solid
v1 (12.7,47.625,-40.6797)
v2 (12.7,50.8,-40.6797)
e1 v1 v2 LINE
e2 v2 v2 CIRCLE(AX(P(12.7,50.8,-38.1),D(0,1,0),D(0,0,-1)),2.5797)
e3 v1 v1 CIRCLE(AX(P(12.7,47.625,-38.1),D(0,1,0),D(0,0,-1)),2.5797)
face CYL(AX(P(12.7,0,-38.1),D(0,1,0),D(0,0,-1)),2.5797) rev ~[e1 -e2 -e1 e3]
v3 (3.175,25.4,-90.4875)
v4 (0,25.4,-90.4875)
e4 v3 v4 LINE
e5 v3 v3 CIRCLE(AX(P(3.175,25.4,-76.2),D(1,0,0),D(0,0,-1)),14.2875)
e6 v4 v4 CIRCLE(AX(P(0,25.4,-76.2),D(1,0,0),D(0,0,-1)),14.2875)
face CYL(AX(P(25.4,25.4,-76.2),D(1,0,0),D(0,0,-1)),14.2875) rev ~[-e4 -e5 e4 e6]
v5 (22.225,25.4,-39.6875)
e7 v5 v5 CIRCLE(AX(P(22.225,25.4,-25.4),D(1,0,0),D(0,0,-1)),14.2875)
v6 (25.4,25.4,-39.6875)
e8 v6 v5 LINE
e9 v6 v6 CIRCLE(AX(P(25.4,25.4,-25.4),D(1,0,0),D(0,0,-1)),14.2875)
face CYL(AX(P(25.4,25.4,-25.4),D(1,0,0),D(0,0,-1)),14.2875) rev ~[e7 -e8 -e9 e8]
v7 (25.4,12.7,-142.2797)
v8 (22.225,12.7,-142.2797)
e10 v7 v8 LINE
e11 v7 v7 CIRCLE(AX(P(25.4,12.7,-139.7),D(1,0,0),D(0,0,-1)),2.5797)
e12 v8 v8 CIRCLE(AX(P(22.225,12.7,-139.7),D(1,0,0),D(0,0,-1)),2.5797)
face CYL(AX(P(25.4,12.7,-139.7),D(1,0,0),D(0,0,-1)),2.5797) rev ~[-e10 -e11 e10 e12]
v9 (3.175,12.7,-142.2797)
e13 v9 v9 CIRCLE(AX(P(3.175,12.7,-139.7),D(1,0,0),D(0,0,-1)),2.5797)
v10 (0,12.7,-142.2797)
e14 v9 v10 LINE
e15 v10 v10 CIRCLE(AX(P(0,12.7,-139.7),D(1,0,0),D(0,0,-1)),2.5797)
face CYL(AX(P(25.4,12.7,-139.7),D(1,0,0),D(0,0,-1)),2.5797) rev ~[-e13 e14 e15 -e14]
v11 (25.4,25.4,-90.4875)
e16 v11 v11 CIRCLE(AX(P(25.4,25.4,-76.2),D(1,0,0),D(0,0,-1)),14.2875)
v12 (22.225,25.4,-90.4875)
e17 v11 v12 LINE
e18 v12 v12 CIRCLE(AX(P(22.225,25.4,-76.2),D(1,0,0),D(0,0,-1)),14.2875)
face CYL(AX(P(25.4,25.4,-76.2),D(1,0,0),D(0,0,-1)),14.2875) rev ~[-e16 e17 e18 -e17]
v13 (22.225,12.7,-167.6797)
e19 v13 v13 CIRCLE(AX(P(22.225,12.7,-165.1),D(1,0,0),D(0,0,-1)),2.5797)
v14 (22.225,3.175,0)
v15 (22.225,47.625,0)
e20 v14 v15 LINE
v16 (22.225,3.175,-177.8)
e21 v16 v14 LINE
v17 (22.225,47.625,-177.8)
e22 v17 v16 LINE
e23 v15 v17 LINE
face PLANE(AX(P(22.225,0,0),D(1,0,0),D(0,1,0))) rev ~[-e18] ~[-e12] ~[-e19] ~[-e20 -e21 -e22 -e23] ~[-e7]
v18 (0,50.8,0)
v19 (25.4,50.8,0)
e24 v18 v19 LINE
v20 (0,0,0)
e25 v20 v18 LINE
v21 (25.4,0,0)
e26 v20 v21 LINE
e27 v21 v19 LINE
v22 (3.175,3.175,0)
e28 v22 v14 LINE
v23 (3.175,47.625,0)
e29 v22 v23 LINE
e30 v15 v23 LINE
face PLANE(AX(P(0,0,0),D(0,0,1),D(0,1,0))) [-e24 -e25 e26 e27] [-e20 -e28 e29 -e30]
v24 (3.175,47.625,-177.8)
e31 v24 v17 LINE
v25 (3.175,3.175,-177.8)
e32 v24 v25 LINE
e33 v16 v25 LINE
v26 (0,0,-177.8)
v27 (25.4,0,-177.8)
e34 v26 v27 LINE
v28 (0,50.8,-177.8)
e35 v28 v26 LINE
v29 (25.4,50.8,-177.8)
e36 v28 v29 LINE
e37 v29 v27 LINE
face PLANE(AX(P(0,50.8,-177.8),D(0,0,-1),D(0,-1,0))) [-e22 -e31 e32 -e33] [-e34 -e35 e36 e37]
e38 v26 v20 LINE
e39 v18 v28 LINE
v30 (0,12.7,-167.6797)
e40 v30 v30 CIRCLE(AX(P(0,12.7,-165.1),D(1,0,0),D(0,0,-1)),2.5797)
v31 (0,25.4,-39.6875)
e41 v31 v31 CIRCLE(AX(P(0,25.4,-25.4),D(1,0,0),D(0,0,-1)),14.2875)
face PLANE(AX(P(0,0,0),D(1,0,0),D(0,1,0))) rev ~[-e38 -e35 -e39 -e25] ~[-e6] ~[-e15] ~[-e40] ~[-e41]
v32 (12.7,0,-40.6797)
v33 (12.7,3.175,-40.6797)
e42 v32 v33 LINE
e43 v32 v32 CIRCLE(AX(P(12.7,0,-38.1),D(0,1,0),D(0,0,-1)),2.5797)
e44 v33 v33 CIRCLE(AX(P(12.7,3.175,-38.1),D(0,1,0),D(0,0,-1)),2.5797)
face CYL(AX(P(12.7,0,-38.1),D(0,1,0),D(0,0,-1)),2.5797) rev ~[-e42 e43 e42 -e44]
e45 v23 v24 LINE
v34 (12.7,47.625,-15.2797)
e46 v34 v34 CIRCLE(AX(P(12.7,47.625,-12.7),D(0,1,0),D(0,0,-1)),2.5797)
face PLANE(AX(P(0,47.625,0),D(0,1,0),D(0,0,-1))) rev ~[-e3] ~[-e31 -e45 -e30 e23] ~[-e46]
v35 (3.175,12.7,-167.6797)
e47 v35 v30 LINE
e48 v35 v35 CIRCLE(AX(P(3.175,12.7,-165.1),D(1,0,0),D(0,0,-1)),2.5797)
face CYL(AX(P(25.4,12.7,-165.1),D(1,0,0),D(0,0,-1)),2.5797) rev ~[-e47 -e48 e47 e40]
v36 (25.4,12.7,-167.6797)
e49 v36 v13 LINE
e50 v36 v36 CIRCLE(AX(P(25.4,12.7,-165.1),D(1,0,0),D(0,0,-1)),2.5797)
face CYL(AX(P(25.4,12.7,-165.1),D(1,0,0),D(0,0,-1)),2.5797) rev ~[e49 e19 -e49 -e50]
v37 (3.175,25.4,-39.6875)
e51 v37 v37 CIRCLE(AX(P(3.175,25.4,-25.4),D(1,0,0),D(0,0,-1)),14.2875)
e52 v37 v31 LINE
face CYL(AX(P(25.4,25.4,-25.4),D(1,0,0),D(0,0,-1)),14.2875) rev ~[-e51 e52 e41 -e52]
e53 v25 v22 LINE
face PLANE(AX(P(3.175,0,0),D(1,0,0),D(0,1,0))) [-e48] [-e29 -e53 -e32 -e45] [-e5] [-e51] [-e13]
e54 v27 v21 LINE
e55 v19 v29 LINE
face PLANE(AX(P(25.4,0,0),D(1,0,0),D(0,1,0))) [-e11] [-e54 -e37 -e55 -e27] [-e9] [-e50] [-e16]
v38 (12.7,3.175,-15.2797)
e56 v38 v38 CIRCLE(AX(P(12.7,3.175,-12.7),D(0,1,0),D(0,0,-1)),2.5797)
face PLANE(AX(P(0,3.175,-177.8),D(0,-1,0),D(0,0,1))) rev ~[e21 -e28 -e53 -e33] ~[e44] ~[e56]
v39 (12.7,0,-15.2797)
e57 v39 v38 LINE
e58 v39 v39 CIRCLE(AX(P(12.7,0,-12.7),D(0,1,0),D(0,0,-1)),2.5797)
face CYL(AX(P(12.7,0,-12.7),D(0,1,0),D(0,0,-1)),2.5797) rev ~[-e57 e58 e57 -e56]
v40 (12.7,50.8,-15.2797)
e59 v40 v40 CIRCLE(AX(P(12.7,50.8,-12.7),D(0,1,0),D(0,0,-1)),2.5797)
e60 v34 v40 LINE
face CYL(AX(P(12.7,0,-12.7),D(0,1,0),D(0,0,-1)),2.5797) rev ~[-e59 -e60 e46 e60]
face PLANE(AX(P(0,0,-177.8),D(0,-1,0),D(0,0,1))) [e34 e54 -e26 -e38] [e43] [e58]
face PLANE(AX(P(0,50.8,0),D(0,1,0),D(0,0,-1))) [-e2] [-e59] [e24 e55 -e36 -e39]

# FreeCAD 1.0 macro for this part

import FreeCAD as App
import Part
import Sketcher
from FreeCAD import Vector
Q = App.Units.Quantity


def faces_at(feature, points):
    """Names of the faces that lie closest to the given points."""
    faces = feature.Shape.Faces
    near = lambda p: min(range(len(faces)), key=lambda i: faces[i].distToShape(Part.Vertex(*p))[0])
    return sorted({f"Face{near(p) + 1}" for p in points})

doc = App.newDocument("Part")
body = doc.addObject("PartDesign::Body", "Body")

# Sketch on YZ plane
sketch1 = doc.addObject("Sketcher::SketchObject", "Sketch")
body.addObject(sketch1)
sketch1.AttachmentSupport = (doc.YZ_Plane, [""])
sketch1.MapMode = "FlatFace"
sketch1.addGeometry([
    Part.LineSegment(Vector(50.8, 0, 0), Vector(0, 0, 0)),
    Part.LineSegment(Vector(0, 0, 0), Vector(0, -177.8, 0)),
    Part.LineSegment(Vector(0, -177.8, 0), Vector(50.8, -177.8, 0)),
    Part.LineSegment(Vector(50.8, -177.8, 0), Vector(50.8, 0, 0)),
], False)
sketch1.addConstraint([
    Sketcher.Constraint("Coincident", 0, 2, 1, 1),
    Sketcher.Constraint("Coincident", 1, 2, 2, 1),
    Sketcher.Constraint("Coincident", 2, 2, 3, 1),
    Sketcher.Constraint("Coincident", 3, 2, 0, 1),
    Sketcher.Constraint("Horizontal", 0),
    Sketcher.Constraint("Vertical", 1),
    Sketcher.Constraint("Horizontal", 2),
    Sketcher.Constraint("Vertical", 3),
    Sketcher.Constraint("Coincident", 0, 2, -1, 1),
    Sketcher.Constraint("DistanceX", 0, 2, 0, 1, Q("2 in")),
    Sketcher.Constraint("DistanceY", 1, 2, 1, 1, Q("7 in")),
])
pad1 = doc.addObject("PartDesign::Pad", "Pad")
body.addObject(pad1)
pad1.Profile = sketch1
pad1.Length = Q("1 in")
doc.recompute()

thickness = doc.addObject("PartDesign::Thickness", "Thickness")
body.addObject(thickness)
thickness.Base = (pad1, faces_at(pad1, [(8.467, 16.933, 0), (8.467, 33.867, -177.8)]))
thickness.Value = Q("0.125 in")
thickness.Reversed = True
thickness.Join = "Intersection"

# Sketch on YZ plane
sketch2 = doc.addObject("Sketcher::SketchObject", "Sketch001")
body.addObject(sketch2)
sketch2.AttachmentSupport = (doc.YZ_Plane, [""])
sketch2.MapMode = "FlatFace"
sketch2.AttachmentOffset = App.Placement(Vector(0, 0, 1 * 25.4), App.Rotation())
sketch2.addGeometry([
    Part.Circle(Vector(25.4, -25.4, 0), Vector(0, 0, 1), 14.2875),
    Part.Circle(Vector(25.4, -76.2, 0), Vector(0, 0, 1), 14.2875),
    Part.Circle(Vector(12.7, -165.1, 0), Vector(0, 0, 1), 2.5797),
    Part.Circle(Vector(12.7, -139.7, 0), Vector(0, 0, 1), 2.5797),
], False)
sketch2.addConstraint([
    Sketcher.Constraint("Equal", 0, 1),
    Sketcher.Constraint("Equal", 2, 3),
    Sketcher.Constraint("Vertical", 0, 3, 1, 3),
    Sketcher.Constraint("Vertical", 2, 3, 3, 3),
    Sketcher.Constraint("Diameter", 0, Q("1.125 in")),
    Sketcher.Constraint("Diameter", 2, Q("0.203126 in")),
    Sketcher.Constraint("DistanceX", -1, 1, 0, 3, Q("1 in")),
    Sketcher.Constraint("DistanceY", 0, 3, -1, 1, Q("1 in")),
    Sketcher.Constraint("DistanceY", 1, 3, 0, 3, Q("2 in")),
    Sketcher.Constraint("DistanceY", 2, 3, 3, 3, Q("1 in")),
    Sketcher.Constraint("DistanceX", -1, 1, 2, 3, Q("0.5 in")),
    Sketcher.Constraint("DistanceY", 2, 3, -1, 1, Q("6.5 in")),
])
pocket1 = doc.addObject("PartDesign::Pocket", "Pocket")
body.addObject(pocket1)
pocket1.Profile = sketch2
pocket1.Length = Q("2 in")

# Sketch on XZ plane
sketch3 = doc.addObject("Sketcher::SketchObject", "Sketch002")
body.addObject(sketch3)
sketch3.AttachmentSupport = (doc.XZ_Plane, [""])
sketch3.MapMode = "FlatFace"
sketch3.addGeometry(Part.Circle(Vector(12.7, -12.7, 0), Vector(0, 0, 1), 2.5797), False)
sketch3.addConstraint([
    Sketcher.Constraint("Diameter", 0, Q("0.203126 in")),
    Sketcher.Constraint("DistanceX", -1, 1, 0, 3, Q("0.5 in")),
    Sketcher.Constraint("DistanceY", 0, 3, -1, 1, Q("0.5 in")),
])
doc.recompute()
hole = doc.addObject("PartDesign::Hole", "Hole")
body.addObject(hole)
hole.Profile = sketch3
hole.ThreadType = "None"
hole.Diameter = Q("0.203126 in")
hole.DepthType = "ThroughAll"

# Sketch on XZ plane
sketch4 = doc.addObject("Sketcher::SketchObject", "Sketch003")
body.addObject(sketch4)
sketch4.AttachmentSupport = (doc.XZ_Plane, [""])
sketch4.MapMode = "FlatFace"
sketch4.addGeometry(Part.Circle(Vector(12.7, -38.1, 0), Vector(0, 0, 1), 2.5797), False)
sketch4.addConstraint([
    Sketcher.Constraint("Diameter", 0, Q("0.203126 in")),
    Sketcher.Constraint("DistanceX", -1, 1, 0, 3, Q("0.5 in")),
    Sketcher.Constraint("DistanceY", 0, 3, -1, 1, Q("1.5 in")),
])
doc.recompute()
hole2 = doc.addObject("PartDesign::Hole", "Hole001")
body.addObject(hole2)
hole2.Profile = sketch4
hole2.ThreadType = "None"
hole2.Diameter = Q("0.203126 in")
hole2.DepthType = "ThroughAll"

doc.recompute()
